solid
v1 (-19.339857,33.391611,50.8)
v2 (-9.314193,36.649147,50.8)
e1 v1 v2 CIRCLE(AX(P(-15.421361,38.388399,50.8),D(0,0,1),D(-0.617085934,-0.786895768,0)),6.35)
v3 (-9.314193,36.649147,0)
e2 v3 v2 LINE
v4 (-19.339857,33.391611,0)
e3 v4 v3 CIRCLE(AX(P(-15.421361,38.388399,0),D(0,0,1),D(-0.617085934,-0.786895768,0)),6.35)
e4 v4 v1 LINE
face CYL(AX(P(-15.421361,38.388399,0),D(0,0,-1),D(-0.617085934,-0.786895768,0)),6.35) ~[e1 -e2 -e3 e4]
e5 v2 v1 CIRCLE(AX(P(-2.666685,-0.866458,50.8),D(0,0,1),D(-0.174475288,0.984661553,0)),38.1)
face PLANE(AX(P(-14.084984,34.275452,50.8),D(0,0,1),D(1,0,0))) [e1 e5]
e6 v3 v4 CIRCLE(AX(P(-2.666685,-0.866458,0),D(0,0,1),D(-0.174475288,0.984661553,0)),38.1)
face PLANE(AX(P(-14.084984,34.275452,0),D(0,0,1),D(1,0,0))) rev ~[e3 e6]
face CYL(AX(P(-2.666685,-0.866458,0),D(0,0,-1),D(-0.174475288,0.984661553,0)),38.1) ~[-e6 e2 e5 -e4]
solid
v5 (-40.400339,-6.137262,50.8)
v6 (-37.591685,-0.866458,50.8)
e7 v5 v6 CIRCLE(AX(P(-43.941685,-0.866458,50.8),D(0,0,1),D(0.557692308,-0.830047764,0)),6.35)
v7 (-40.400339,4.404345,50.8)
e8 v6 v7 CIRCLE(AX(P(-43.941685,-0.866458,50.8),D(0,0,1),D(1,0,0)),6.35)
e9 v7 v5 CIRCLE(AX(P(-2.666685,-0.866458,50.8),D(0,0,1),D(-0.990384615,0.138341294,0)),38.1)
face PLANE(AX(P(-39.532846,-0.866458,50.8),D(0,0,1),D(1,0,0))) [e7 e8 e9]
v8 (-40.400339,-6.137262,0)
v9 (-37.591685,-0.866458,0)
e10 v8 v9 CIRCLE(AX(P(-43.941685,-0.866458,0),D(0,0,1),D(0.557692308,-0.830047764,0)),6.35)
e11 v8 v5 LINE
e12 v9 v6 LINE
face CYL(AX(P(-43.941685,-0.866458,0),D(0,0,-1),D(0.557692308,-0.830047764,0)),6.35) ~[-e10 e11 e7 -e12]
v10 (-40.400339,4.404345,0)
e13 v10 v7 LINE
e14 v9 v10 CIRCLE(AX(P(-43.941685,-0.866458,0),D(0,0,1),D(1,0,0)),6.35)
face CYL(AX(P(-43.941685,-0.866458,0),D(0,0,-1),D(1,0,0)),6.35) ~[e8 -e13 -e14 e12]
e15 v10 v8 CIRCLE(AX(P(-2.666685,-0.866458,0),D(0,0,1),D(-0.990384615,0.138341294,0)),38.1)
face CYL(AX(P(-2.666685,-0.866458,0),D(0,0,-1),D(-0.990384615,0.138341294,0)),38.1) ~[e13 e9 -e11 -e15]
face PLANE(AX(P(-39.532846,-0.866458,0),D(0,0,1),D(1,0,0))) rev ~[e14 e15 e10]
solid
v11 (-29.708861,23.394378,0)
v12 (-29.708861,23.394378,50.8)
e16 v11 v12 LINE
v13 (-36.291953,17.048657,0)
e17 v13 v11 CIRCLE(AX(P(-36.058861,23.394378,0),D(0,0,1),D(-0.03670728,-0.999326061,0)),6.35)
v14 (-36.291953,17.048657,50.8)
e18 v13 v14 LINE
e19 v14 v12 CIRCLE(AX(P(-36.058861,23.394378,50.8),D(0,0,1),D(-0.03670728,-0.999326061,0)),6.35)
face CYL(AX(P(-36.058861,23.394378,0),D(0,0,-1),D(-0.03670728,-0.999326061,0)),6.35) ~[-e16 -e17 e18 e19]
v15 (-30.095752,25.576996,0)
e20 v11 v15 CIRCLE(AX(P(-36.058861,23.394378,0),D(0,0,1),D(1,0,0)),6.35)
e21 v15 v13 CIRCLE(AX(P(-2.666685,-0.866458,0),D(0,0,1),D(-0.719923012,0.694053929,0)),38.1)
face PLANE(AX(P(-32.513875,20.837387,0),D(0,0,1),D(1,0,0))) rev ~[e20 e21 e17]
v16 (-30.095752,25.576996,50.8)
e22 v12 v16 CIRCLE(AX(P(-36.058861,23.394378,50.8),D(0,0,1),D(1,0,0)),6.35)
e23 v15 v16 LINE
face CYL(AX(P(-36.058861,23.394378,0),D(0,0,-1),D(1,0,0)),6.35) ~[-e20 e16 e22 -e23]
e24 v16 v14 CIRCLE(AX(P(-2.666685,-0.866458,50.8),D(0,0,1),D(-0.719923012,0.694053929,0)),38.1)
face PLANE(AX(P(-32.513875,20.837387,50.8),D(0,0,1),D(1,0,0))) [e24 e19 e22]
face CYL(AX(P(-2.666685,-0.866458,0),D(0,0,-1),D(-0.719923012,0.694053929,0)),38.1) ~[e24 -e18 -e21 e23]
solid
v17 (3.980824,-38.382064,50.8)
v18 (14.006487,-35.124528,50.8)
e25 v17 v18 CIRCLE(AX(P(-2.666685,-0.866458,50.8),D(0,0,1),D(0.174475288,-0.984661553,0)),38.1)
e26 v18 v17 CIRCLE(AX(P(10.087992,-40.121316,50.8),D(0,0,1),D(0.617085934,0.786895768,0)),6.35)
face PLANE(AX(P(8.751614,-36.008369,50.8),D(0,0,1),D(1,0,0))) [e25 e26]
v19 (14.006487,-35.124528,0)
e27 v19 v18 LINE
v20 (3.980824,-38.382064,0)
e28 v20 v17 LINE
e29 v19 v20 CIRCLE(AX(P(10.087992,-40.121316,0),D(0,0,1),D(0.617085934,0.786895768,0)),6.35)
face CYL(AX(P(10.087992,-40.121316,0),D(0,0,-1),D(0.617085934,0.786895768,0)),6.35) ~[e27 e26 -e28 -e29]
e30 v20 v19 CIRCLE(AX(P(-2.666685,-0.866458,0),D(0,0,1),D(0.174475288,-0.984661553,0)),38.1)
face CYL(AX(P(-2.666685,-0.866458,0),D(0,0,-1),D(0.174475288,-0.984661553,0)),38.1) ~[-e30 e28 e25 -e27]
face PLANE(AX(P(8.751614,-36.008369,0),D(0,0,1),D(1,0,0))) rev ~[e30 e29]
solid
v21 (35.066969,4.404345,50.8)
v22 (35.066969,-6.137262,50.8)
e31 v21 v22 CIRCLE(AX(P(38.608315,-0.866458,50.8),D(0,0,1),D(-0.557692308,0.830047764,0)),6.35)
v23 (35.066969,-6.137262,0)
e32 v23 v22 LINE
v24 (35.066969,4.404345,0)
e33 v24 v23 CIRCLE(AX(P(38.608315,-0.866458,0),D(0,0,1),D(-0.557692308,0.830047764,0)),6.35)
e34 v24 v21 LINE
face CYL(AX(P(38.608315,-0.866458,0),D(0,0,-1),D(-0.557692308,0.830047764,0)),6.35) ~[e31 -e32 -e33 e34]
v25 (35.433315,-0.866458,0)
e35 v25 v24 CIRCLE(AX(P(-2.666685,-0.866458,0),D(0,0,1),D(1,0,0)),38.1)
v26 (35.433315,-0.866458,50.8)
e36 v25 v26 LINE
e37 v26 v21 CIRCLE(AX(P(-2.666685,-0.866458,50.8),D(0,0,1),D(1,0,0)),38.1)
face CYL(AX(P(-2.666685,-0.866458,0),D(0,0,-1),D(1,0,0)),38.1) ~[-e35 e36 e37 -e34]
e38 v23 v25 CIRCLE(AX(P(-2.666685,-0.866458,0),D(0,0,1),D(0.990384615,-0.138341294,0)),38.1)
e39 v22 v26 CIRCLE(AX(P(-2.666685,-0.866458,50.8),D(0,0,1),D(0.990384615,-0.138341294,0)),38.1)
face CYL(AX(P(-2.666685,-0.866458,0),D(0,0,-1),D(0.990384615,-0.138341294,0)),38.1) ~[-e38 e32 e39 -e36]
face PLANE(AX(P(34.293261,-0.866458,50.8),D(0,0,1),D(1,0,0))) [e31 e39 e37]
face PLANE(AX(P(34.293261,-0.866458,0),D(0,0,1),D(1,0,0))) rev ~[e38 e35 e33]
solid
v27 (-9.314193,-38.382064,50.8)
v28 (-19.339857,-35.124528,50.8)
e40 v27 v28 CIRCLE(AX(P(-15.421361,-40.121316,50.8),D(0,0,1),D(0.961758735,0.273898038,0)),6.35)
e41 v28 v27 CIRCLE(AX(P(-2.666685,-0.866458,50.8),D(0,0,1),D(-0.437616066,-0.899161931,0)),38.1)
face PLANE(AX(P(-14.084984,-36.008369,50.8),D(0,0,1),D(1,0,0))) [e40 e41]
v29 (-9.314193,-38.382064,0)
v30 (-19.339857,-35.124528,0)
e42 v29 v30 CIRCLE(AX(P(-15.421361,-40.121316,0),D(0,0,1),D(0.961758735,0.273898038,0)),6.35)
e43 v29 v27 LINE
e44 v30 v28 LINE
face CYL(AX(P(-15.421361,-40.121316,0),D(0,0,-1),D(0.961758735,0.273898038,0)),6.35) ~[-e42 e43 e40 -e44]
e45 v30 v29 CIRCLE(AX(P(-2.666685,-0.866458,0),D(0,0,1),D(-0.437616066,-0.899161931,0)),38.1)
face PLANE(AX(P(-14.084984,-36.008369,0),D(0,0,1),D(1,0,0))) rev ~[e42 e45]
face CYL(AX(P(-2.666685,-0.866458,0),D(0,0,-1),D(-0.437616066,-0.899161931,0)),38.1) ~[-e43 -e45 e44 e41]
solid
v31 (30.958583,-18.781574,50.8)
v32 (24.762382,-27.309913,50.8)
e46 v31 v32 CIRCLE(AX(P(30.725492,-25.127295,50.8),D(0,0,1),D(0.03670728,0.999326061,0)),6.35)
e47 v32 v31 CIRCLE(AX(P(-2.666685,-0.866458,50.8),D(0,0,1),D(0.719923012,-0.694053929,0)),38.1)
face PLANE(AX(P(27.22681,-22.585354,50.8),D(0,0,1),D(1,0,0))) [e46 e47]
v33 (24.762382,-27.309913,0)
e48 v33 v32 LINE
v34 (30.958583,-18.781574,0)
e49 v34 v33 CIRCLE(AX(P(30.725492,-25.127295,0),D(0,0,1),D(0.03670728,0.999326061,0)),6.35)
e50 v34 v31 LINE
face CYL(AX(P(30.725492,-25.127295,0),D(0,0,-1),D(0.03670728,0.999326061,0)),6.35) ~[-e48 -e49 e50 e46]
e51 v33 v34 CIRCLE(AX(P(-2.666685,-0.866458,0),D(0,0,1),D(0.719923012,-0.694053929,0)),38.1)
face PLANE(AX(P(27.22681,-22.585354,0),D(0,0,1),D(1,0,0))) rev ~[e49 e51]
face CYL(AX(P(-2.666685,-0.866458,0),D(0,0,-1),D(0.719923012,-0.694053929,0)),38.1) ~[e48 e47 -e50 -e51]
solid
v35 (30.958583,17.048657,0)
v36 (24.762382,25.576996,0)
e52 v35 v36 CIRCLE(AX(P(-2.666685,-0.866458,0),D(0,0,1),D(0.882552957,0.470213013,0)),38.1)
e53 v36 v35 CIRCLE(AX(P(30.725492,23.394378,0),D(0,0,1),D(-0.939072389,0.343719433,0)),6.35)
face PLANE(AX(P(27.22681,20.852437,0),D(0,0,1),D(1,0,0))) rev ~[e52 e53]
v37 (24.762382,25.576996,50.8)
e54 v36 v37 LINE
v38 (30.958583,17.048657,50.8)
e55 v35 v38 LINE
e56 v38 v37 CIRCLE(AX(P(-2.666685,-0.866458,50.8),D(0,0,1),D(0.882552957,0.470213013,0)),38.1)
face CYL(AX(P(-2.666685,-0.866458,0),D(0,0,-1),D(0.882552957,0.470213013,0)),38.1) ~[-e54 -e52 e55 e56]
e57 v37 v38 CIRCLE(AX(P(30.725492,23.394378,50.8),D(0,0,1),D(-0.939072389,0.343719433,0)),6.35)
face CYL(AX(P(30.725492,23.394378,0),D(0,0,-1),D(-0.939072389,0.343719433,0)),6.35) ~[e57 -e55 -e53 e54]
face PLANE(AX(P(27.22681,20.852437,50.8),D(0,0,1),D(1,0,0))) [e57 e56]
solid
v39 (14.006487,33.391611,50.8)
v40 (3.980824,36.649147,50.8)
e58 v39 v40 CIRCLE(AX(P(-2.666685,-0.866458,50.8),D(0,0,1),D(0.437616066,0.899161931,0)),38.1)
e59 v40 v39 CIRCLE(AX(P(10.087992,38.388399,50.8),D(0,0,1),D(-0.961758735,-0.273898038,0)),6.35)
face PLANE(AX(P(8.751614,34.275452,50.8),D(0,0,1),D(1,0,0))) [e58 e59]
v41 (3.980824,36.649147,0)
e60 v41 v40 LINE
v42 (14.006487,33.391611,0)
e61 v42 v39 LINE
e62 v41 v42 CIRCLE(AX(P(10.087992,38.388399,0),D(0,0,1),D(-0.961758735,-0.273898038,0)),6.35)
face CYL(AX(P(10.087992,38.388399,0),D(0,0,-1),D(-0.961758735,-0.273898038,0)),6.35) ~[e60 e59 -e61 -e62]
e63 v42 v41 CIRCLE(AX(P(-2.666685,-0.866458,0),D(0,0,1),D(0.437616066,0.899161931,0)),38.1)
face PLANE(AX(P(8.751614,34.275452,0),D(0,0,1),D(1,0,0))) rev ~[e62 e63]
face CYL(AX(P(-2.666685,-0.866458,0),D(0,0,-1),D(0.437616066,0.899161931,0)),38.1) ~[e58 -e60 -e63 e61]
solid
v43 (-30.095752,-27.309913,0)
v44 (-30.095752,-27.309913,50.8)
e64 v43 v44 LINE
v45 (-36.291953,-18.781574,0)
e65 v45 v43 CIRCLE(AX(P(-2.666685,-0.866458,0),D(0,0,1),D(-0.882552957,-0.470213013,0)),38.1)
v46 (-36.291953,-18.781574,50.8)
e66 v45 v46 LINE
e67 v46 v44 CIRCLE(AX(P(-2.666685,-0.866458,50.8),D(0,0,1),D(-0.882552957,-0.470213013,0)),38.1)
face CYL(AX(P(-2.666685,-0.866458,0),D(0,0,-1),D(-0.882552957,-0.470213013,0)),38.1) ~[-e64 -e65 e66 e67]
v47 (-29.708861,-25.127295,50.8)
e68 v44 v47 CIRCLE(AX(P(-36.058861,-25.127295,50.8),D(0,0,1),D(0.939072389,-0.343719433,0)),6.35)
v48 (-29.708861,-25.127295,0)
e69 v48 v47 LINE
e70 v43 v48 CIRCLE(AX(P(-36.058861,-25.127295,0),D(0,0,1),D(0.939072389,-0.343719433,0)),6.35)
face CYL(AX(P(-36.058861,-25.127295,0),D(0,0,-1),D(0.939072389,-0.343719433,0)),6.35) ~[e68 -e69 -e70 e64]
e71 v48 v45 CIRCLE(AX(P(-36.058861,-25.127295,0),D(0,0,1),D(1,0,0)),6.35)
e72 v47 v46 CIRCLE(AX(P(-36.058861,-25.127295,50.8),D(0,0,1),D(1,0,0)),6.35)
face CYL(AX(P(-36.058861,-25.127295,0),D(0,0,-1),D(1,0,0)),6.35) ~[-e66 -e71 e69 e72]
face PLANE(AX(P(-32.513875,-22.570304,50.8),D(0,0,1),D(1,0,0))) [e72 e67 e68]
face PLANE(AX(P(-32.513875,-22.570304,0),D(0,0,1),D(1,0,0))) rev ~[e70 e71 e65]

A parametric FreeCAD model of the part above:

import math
import FreeCAD as App
import Part
import Sketcher
from FreeCAD import Vector
Q = App.Units.Quantity

doc = App.newDocument("Part")
body = doc.addObject("PartDesign::Body", "Body")

sketch1 = doc.addObject("Sketcher::SketchObject", "Sketch")
body.addObject(sketch1)
sketch1.AttachmentSupport = (doc.XY_Plane, [""])
sketch1.MapMode = "FlatFace"
sketch1.addGeometry([
    Part.ArcOfCircle(Part.Circle(Vector(-15, 38, 0), Vector(0, 0, 1), 6), math.radians(-128), math.radians(-16)),
    Part.ArcOfCircle(Part.Circle(Vector(-3, -1, 0), Vector(0, 0, 1), 38), math.radians(100.05), math.radians(115.95)),
], False)
sketch1.addConstraint([
    Sketcher.Constraint("Coincident", 0, 1, 1, 2),
    Sketcher.Constraint("Coincident", 1, 1, 0, 2),
    Sketcher.Constraint("Radius", 1, Q("1.5 in")),
    Sketcher.Constraint("Radius", 0, Q("0.25 in")),
    Sketcher.Constraint("DistanceY", -1, 1, 0, 3, Q("38.388399 mm")),
    Sketcher.Constraint("DistanceX", 0, 3, -1, 1, Q("15.421361 mm")),
    Sketcher.Constraint("DistanceY", 1, 3, -1, 1, Q("0.866458 mm")),
    Sketcher.Constraint("DistanceY", -1, 1, 0, 1, Q("33.391611 mm")),
])
pad1 = doc.addObject("PartDesign::Pad", "Pad")
body.addObject(pad1)
pad1.Profile = sketch1
pad1.Length = Q("2 in")
body2 = doc.addObject("PartDesign::Body", "Body001")

sketch2 = doc.addObject("Sketcher::SketchObject", "Sketch001")
body2.addObject(sketch2)
sketch2.AttachmentSupport = (doc.getObject("XY_Plane001"), [""])
sketch2.MapMode = "FlatFace"
sketch2.addGeometry([
    Part.ArcOfCircle(Part.Circle(Vector(-36.1, 23.4, 0), Vector(0, 0, 1), 6.3), math.radians(0), math.radians(20)),
    Part.ArcOfCircle(Part.Circle(Vector(-2.7, -0.9, 0), Vector(0, 0, 1), 38.1), math.radians(136.05), math.radians(151.95)),
    Part.ArcOfCircle(Part.Circle(Vector(-36.1, 23.4, 0), Vector(0, 0, 1), 6.3), math.radians(-92), math.radians(0)),
], False)
sketch2.addConstraint([
    Sketcher.Constraint("Coincident", 0, 2, 1, 1),
    Sketcher.Constraint("Coincident", 1, 2, 2, 1),
    Sketcher.Constraint("Tangent", 2, 2, 0, 1),
    Sketcher.Constraint("Equal", 0, 2),
    Sketcher.Constraint("Horizontal", 0, 3, 2, 2),
    Sketcher.Constraint("Radius", 1, Q("1.5 in")),
    Sketcher.Constraint("Radius", 0, Q("0.25 in")),
    Sketcher.Constraint("DistanceX", 1, 2, 0, 2, Q("6.196201 mm")),
    Sketcher.Constraint("DistanceX", 0, 3, -1, 1, Q("36.058861 mm")),
    Sketcher.Constraint("DistanceY", 1, 3, -1, 1, Q("0.866458 mm")),
    Sketcher.Constraint("DistanceX", 0, 2, -1, 1, Q("30.095752 mm")),
])
pad2 = doc.addObject("PartDesign::Pad", "Pad001")
body2.addObject(pad2)
pad2.Profile = sketch2
pad2.Length = Q("2 in")
body3 = doc.addObject("PartDesign::Body", "Body002")

sketch3 = doc.addObject("Sketcher::SketchObject", "Sketch002")
body3.addObject(sketch3)
sketch3.AttachmentSupport = (doc.getObject("XY_Plane002"), [""])
sketch3.MapMode = "FlatFace"
sketch3.addGeometry([
    Part.ArcOfCircle(Part.Circle(Vector(-44, -1, 0), Vector(0, 0, 1), 6), math.radians(0), math.radians(56)),
    Part.ArcOfCircle(Part.Circle(Vector(-3, -1, 0), Vector(0, 0, 1), 38), math.radians(172.05), math.radians(187.95)),
    Part.ArcOfCircle(Part.Circle(Vector(-44, -1, 0), Vector(0, 0, 1), 6), math.radians(-56), math.radians(0)),
], False)
sketch3.addConstraint([
    Sketcher.Constraint("Coincident", 0, 2, 1, 1),
    Sketcher.Constraint("Coincident", 1, 2, 2, 1),
    Sketcher.Constraint("Tangent", 2, 2, 0, 1),
    Sketcher.Constraint("Equal", 0, 2),
    Sketcher.Constraint("Horizontal", 0, 3, 1, 3),
    Sketcher.Constraint("Horizontal", 1, 3, 2, 2),
    Sketcher.Constraint("Radius", 1, Q("1.5 in")),
    Sketcher.Constraint("Radius", 0, Q("0.25 in")),
    Sketcher.Constraint("DistanceX", 0, 3, 1, 3, Q("1.625 in")),
    Sketcher.Constraint("DistanceY", 0, 3, -1, 1, Q("0.866458 mm")),
    Sketcher.Constraint("DistanceX", 0, 2, -1, 1, Q("40.400339 mm")),
])
pad3 = doc.addObject("PartDesign::Pad", "Pad002")
body3.addObject(pad3)
pad3.Profile = sketch3
pad3.Length = Q("2 in")
body4 = doc.addObject("PartDesign::Body", "Body003")

sketch4 = doc.addObject("Sketcher::SketchObject", "Sketch003")
body4.addObject(sketch4)
sketch4.AttachmentSupport = (doc.getObject("XY_Plane003"), [""])
sketch4.MapMode = "FlatFace"
sketch4.addGeometry([
    Part.ArcOfCircle(Part.Circle(Vector(10, 38, 0), Vector(0, 0, 1), 6), math.radians(-164), math.radians(-52)),
    Part.ArcOfCircle(Part.Circle(Vector(-3, -1, 0), Vector(0, 0, 1), 38), math.radians(64.05), math.radians(79.95)),
], False)
sketch4.addConstraint([
    Sketcher.Constraint("Coincident", 0, 1, 1, 2),
    Sketcher.Constraint("Coincident", 1, 1, 0, 2),
    Sketcher.Constraint("Radius", 1, Q("1.5 in")),
    Sketcher.Constraint("Radius", 0, Q("0.25 in")),
    Sketcher.Constraint("DistanceY", -1, 1, 0, 3, Q("38.388399 mm")),
    Sketcher.Constraint("DistanceX", -1, 1, 0, 3, Q("10.087992 mm")),
    Sketcher.Constraint("DistanceY", 1, 3, -1, 1, Q("0.866458 mm")),
    Sketcher.Constraint("DistanceY", -1, 1, 1, 1, Q("33.391611 mm")),
])
pad4 = doc.addObject("PartDesign::Pad", "Pad003")
body4.addObject(pad4)
pad4.Profile = sketch4
pad4.Length = Q("2 in")
body5 = doc.addObject("PartDesign::Body", "Body004")

sketch5 = doc.addObject("Sketcher::SketchObject", "Sketch004")
body5.addObject(sketch5)
sketch5.AttachmentSupport = (doc.getObject("XY_Plane004"), [""])
sketch5.MapMode = "FlatFace"
sketch5.addGeometry([
    Part.ArcOfCircle(Part.Circle(Vector(31, 23, 0), Vector(0, 0, 1), 6), math.radians(160), math.radians(272)),
    Part.ArcOfCircle(Part.Circle(Vector(-3, -1, 0), Vector(0, 0, 1), 38), math.radians(28.05), math.radians(43.95)),
], False)
sketch5.addConstraint([
    Sketcher.Constraint("Coincident", 0, 1, 1, 2),
    Sketcher.Constraint("Coincident", 1, 1, 0, 2),
    Sketcher.Constraint("Radius", 1, Q("1.5 in")),
    Sketcher.Constraint("Radius", 0, Q("0.25 in")),
    Sketcher.Constraint("DistanceX", 0, 1, 1, 1, Q("6.196201 mm")),
    Sketcher.Constraint("DistanceX", -1, 1, 0, 3, Q("30.725492 mm")),
    Sketcher.Constraint("DistanceY", 1, 3, -1, 1, Q("0.866458 mm")),
    Sketcher.Constraint("DistanceX", -1, 1, 0, 1, Q("24.762382 mm")),
])
pad5 = doc.addObject("PartDesign::Pad", "Pad004")
body5.addObject(pad5)
pad5.Profile = sketch5
pad5.Length = Q("2 in")
body6 = doc.addObject("PartDesign::Body", "Body005")

sketch6 = doc.addObject("Sketcher::SketchObject", "Sketch005")
body6.addObject(sketch6)
sketch6.AttachmentSupport = (doc.getObject("XY_Plane005"), [""])
sketch6.MapMode = "FlatFace"
sketch6.addGeometry([
    Part.ArcOfCircle(Part.Circle(Vector(-3, -1, 0), Vector(0, 0, 1), 38), math.radians(-7.95), math.radians(0)),
    Part.ArcOfCircle(Part.Circle(Vector(-3, -1, 0), Vector(0, 0, 1), 38), math.radians(0), math.radians(7.95)),
    Part.ArcOfCircle(Part.Circle(Vector(39, -1, 0), Vector(0, 0, 1), 6), math.radians(124), math.radians(236)),
], False)
sketch6.addConstraint([
    Sketcher.Constraint("Tangent", 0, 2, 1, 1),
    Sketcher.Constraint("Coincident", 1, 2, 2, 1),
    Sketcher.Constraint("Coincident", 2, 2, 0, 1),
    Sketcher.Constraint("Equal", 0, 1),
    Sketcher.Constraint("Horizontal", 1, 3, 2, 3),
    Sketcher.Constraint("Horizontal", 2, 3, 0, 2),
    Sketcher.Constraint("Radius", 0, Q("1.5 in")),
    Sketcher.Constraint("Radius", 2, Q("0.25 in")),
    Sketcher.Constraint("DistanceX", 1, 3, 2, 3, Q("1.625 in")),
    Sketcher.Constraint("DistanceY", 0, 3, -1, 1, Q("0.866458 mm")),
    Sketcher.Constraint("DistanceX", -1, 1, 1, 2, Q("35.066969 mm")),
])
pad6 = doc.addObject("PartDesign::Pad", "Pad005")
body6.addObject(pad6)
pad6.Profile = sketch6
pad6.Length = Q("2 in")
body7 = doc.addObject("PartDesign::Body", "Body006")

sketch7 = doc.addObject("Sketcher::SketchObject", "Sketch006")
body7.addObject(sketch7)
sketch7.AttachmentSupport = (doc.getObject("XY_Plane006"), [""])
sketch7.MapMode = "FlatFace"
sketch7.addGeometry([
    Part.ArcOfCircle(Part.Circle(Vector(-3, -1, 0), Vector(0, 0, 1), 38), math.radians(-43.95), math.radians(-28.05)),
    Part.ArcOfCircle(Part.Circle(Vector(31, -25, 0), Vector(0, 0, 1), 6), math.radians(88), math.radians(200)),
], False)
sketch7.addConstraint([
    Sketcher.Constraint("Coincident", 0, 1, 1, 2),
    Sketcher.Constraint("Coincident", 1, 1, 0, 2),
    Sketcher.Constraint("Radius", 0, Q("1.5 in")),
    Sketcher.Constraint("Radius", 1, Q("0.25 in")),
    Sketcher.Constraint("DistanceX", 0, 1, 1, 1, Q("6.196201 mm")),
    Sketcher.Constraint("DistanceY", 0, 3, -1, 1, Q("0.866458 mm")),
    Sketcher.Constraint("DistanceX", -1, 1, 1, 3, Q("30.725492 mm")),
    Sketcher.Constraint("DistanceX", -1, 1, 0, 1, Q("24.762382 mm")),
])
pad7 = doc.addObject("PartDesign::Pad", "Pad006")
body7.addObject(pad7)
pad7.Profile = sketch7
pad7.Length = Q("2 in")
body8 = doc.addObject("PartDesign::Body", "Body007")

sketch8 = doc.addObject("Sketcher::SketchObject", "Sketch007")
body8.addObject(sketch8)
sketch8.AttachmentSupport = (doc.getObject("XY_Plane007"), [""])
sketch8.MapMode = "FlatFace"
sketch8.addGeometry([
    Part.ArcOfCircle(Part.Circle(Vector(-3, -1, 0), Vector(0, 0, 1), 38), math.radians(-79.95), math.radians(-64.05)),
    Part.ArcOfCircle(Part.Circle(Vector(10, -40, 0), Vector(0, 0, 1), 6), math.radians(52), math.radians(164)),
], False)
sketch8.addConstraint([
    Sketcher.Constraint("Coincident", 0, 1, 1, 2),
    Sketcher.Constraint("Coincident", 1, 1, 0, 2),
    Sketcher.Constraint("Radius", 0, Q("1.5 in")),
    Sketcher.Constraint("Radius", 1, Q("0.25 in")),
    Sketcher.Constraint("DistanceY", 0, 3, -1, 1, Q("0.866458 mm")),
    Sketcher.Constraint("DistanceX", -1, 1, 1, 3, Q("10.087992 mm")),
    Sketcher.Constraint("DistanceY", 1, 1, -1, 1, Q("35.124528 mm")),
    Sketcher.Constraint("DistanceX", 0, 3, 0, 1, Q("6.647508 mm")),
])
pad8 = doc.addObject("PartDesign::Pad", "Pad007")
body8.addObject(pad8)
pad8.Profile = sketch8
pad8.Length = Q("2 in")
body9 = doc.addObject("PartDesign::Body", "Body008")

sketch9 = doc.addObject("Sketcher::SketchObject", "Sketch008")
body9.addObject(sketch9)
sketch9.AttachmentSupport = (doc.getObject("XY_Plane008"), [""])
sketch9.MapMode = "FlatFace"
sketch9.addGeometry([
    Part.ArcOfCircle(Part.Circle(Vector(-3, -1, 0), Vector(0, 0, 1), 38), math.radians(-115.95), math.radians(-100.05)),
    Part.ArcOfCircle(Part.Circle(Vector(-15, -40, 0), Vector(0, 0, 1), 6), math.radians(16), math.radians(128)),
], False)
sketch9.addConstraint([
    Sketcher.Constraint("Coincident", 0, 1, 1, 2),
    Sketcher.Constraint("Coincident", 1, 1, 0, 2),
    Sketcher.Constraint("Radius", 0, Q("1.5 in")),
    Sketcher.Constraint("Radius", 1, Q("0.25 in")),
    Sketcher.Constraint("DistanceY", 0, 3, -1, 1, Q("0.866458 mm")),
    Sketcher.Constraint("DistanceX", 1, 3, -1, 1, Q("15.421361 mm")),
    Sketcher.Constraint("DistanceY", 0, 1, -1, 1, Q("35.124528 mm")),
    Sketcher.Constraint("DistanceY", 1, 3, 0, 1, Q("4.996788 mm")),
])
pad9 = doc.addObject("PartDesign::Pad", "Pad008")
body9.addObject(pad9)
pad9.Profile = sketch9
pad9.Length = Q("2 in")
body10 = doc.addObject("PartDesign::Body", "Body009")

sketch10 = doc.addObject("Sketcher::SketchObject", "Sketch009")
body10.addObject(sketch10)
sketch10.AttachmentSupport = (doc.getObject("XY_Plane009"), [""])
sketch10.MapMode = "FlatFace"
sketch10.addGeometry([
    Part.ArcOfCircle(Part.Circle(Vector(-2.7, -0.9, 0), Vector(0, 0, 1), 38.1), math.radians(-151.95), math.radians(-136.05)),
    Part.ArcOfCircle(Part.Circle(Vector(-36.1, -25.1, 0), Vector(0, 0, 1), 6.3), math.radians(-20), math.radians(0)),
    Part.ArcOfCircle(Part.Circle(Vector(-36.1, -25.1, 0), Vector(0, 0, 1), 6.3), math.radians(0), math.radians(92)),
], False)
sketch10.addConstraint([
    Sketcher.Constraint("Coincident", 0, 2, 1, 1),
    Sketcher.Constraint("Tangent", 1, 2, 2, 1),
    Sketcher.Constraint("Coincident", 2, 2, 0, 1),
    Sketcher.Constraint("Equal", 1, 2),
    Sketcher.Constraint("Horizontal", 2, 3, 1, 2),
    Sketcher.Constraint("Radius", 0, Q("1.5 in")),
    Sketcher.Constraint("Radius", 1, Q("0.25 in")),
    Sketcher.Constraint("DistanceX", 2, 2, 0, 2, Q("6.196201 mm")),
    Sketcher.Constraint("DistanceY", 0, 3, -1, 1, Q("0.866458 mm")),
    Sketcher.Constraint("DistanceX", 1, 3, -1, 1, Q("36.058861 mm")),
    Sketcher.Constraint("DistanceX", 0, 2, -1, 1, Q("30.095752 mm")),
])
pad10 = doc.addObject("PartDesign::Pad", "Pad009")
body10.addObject(pad10)
pad10.Profile = sketch10
pad10.Length = Q("2 in")

doc.recompute()
